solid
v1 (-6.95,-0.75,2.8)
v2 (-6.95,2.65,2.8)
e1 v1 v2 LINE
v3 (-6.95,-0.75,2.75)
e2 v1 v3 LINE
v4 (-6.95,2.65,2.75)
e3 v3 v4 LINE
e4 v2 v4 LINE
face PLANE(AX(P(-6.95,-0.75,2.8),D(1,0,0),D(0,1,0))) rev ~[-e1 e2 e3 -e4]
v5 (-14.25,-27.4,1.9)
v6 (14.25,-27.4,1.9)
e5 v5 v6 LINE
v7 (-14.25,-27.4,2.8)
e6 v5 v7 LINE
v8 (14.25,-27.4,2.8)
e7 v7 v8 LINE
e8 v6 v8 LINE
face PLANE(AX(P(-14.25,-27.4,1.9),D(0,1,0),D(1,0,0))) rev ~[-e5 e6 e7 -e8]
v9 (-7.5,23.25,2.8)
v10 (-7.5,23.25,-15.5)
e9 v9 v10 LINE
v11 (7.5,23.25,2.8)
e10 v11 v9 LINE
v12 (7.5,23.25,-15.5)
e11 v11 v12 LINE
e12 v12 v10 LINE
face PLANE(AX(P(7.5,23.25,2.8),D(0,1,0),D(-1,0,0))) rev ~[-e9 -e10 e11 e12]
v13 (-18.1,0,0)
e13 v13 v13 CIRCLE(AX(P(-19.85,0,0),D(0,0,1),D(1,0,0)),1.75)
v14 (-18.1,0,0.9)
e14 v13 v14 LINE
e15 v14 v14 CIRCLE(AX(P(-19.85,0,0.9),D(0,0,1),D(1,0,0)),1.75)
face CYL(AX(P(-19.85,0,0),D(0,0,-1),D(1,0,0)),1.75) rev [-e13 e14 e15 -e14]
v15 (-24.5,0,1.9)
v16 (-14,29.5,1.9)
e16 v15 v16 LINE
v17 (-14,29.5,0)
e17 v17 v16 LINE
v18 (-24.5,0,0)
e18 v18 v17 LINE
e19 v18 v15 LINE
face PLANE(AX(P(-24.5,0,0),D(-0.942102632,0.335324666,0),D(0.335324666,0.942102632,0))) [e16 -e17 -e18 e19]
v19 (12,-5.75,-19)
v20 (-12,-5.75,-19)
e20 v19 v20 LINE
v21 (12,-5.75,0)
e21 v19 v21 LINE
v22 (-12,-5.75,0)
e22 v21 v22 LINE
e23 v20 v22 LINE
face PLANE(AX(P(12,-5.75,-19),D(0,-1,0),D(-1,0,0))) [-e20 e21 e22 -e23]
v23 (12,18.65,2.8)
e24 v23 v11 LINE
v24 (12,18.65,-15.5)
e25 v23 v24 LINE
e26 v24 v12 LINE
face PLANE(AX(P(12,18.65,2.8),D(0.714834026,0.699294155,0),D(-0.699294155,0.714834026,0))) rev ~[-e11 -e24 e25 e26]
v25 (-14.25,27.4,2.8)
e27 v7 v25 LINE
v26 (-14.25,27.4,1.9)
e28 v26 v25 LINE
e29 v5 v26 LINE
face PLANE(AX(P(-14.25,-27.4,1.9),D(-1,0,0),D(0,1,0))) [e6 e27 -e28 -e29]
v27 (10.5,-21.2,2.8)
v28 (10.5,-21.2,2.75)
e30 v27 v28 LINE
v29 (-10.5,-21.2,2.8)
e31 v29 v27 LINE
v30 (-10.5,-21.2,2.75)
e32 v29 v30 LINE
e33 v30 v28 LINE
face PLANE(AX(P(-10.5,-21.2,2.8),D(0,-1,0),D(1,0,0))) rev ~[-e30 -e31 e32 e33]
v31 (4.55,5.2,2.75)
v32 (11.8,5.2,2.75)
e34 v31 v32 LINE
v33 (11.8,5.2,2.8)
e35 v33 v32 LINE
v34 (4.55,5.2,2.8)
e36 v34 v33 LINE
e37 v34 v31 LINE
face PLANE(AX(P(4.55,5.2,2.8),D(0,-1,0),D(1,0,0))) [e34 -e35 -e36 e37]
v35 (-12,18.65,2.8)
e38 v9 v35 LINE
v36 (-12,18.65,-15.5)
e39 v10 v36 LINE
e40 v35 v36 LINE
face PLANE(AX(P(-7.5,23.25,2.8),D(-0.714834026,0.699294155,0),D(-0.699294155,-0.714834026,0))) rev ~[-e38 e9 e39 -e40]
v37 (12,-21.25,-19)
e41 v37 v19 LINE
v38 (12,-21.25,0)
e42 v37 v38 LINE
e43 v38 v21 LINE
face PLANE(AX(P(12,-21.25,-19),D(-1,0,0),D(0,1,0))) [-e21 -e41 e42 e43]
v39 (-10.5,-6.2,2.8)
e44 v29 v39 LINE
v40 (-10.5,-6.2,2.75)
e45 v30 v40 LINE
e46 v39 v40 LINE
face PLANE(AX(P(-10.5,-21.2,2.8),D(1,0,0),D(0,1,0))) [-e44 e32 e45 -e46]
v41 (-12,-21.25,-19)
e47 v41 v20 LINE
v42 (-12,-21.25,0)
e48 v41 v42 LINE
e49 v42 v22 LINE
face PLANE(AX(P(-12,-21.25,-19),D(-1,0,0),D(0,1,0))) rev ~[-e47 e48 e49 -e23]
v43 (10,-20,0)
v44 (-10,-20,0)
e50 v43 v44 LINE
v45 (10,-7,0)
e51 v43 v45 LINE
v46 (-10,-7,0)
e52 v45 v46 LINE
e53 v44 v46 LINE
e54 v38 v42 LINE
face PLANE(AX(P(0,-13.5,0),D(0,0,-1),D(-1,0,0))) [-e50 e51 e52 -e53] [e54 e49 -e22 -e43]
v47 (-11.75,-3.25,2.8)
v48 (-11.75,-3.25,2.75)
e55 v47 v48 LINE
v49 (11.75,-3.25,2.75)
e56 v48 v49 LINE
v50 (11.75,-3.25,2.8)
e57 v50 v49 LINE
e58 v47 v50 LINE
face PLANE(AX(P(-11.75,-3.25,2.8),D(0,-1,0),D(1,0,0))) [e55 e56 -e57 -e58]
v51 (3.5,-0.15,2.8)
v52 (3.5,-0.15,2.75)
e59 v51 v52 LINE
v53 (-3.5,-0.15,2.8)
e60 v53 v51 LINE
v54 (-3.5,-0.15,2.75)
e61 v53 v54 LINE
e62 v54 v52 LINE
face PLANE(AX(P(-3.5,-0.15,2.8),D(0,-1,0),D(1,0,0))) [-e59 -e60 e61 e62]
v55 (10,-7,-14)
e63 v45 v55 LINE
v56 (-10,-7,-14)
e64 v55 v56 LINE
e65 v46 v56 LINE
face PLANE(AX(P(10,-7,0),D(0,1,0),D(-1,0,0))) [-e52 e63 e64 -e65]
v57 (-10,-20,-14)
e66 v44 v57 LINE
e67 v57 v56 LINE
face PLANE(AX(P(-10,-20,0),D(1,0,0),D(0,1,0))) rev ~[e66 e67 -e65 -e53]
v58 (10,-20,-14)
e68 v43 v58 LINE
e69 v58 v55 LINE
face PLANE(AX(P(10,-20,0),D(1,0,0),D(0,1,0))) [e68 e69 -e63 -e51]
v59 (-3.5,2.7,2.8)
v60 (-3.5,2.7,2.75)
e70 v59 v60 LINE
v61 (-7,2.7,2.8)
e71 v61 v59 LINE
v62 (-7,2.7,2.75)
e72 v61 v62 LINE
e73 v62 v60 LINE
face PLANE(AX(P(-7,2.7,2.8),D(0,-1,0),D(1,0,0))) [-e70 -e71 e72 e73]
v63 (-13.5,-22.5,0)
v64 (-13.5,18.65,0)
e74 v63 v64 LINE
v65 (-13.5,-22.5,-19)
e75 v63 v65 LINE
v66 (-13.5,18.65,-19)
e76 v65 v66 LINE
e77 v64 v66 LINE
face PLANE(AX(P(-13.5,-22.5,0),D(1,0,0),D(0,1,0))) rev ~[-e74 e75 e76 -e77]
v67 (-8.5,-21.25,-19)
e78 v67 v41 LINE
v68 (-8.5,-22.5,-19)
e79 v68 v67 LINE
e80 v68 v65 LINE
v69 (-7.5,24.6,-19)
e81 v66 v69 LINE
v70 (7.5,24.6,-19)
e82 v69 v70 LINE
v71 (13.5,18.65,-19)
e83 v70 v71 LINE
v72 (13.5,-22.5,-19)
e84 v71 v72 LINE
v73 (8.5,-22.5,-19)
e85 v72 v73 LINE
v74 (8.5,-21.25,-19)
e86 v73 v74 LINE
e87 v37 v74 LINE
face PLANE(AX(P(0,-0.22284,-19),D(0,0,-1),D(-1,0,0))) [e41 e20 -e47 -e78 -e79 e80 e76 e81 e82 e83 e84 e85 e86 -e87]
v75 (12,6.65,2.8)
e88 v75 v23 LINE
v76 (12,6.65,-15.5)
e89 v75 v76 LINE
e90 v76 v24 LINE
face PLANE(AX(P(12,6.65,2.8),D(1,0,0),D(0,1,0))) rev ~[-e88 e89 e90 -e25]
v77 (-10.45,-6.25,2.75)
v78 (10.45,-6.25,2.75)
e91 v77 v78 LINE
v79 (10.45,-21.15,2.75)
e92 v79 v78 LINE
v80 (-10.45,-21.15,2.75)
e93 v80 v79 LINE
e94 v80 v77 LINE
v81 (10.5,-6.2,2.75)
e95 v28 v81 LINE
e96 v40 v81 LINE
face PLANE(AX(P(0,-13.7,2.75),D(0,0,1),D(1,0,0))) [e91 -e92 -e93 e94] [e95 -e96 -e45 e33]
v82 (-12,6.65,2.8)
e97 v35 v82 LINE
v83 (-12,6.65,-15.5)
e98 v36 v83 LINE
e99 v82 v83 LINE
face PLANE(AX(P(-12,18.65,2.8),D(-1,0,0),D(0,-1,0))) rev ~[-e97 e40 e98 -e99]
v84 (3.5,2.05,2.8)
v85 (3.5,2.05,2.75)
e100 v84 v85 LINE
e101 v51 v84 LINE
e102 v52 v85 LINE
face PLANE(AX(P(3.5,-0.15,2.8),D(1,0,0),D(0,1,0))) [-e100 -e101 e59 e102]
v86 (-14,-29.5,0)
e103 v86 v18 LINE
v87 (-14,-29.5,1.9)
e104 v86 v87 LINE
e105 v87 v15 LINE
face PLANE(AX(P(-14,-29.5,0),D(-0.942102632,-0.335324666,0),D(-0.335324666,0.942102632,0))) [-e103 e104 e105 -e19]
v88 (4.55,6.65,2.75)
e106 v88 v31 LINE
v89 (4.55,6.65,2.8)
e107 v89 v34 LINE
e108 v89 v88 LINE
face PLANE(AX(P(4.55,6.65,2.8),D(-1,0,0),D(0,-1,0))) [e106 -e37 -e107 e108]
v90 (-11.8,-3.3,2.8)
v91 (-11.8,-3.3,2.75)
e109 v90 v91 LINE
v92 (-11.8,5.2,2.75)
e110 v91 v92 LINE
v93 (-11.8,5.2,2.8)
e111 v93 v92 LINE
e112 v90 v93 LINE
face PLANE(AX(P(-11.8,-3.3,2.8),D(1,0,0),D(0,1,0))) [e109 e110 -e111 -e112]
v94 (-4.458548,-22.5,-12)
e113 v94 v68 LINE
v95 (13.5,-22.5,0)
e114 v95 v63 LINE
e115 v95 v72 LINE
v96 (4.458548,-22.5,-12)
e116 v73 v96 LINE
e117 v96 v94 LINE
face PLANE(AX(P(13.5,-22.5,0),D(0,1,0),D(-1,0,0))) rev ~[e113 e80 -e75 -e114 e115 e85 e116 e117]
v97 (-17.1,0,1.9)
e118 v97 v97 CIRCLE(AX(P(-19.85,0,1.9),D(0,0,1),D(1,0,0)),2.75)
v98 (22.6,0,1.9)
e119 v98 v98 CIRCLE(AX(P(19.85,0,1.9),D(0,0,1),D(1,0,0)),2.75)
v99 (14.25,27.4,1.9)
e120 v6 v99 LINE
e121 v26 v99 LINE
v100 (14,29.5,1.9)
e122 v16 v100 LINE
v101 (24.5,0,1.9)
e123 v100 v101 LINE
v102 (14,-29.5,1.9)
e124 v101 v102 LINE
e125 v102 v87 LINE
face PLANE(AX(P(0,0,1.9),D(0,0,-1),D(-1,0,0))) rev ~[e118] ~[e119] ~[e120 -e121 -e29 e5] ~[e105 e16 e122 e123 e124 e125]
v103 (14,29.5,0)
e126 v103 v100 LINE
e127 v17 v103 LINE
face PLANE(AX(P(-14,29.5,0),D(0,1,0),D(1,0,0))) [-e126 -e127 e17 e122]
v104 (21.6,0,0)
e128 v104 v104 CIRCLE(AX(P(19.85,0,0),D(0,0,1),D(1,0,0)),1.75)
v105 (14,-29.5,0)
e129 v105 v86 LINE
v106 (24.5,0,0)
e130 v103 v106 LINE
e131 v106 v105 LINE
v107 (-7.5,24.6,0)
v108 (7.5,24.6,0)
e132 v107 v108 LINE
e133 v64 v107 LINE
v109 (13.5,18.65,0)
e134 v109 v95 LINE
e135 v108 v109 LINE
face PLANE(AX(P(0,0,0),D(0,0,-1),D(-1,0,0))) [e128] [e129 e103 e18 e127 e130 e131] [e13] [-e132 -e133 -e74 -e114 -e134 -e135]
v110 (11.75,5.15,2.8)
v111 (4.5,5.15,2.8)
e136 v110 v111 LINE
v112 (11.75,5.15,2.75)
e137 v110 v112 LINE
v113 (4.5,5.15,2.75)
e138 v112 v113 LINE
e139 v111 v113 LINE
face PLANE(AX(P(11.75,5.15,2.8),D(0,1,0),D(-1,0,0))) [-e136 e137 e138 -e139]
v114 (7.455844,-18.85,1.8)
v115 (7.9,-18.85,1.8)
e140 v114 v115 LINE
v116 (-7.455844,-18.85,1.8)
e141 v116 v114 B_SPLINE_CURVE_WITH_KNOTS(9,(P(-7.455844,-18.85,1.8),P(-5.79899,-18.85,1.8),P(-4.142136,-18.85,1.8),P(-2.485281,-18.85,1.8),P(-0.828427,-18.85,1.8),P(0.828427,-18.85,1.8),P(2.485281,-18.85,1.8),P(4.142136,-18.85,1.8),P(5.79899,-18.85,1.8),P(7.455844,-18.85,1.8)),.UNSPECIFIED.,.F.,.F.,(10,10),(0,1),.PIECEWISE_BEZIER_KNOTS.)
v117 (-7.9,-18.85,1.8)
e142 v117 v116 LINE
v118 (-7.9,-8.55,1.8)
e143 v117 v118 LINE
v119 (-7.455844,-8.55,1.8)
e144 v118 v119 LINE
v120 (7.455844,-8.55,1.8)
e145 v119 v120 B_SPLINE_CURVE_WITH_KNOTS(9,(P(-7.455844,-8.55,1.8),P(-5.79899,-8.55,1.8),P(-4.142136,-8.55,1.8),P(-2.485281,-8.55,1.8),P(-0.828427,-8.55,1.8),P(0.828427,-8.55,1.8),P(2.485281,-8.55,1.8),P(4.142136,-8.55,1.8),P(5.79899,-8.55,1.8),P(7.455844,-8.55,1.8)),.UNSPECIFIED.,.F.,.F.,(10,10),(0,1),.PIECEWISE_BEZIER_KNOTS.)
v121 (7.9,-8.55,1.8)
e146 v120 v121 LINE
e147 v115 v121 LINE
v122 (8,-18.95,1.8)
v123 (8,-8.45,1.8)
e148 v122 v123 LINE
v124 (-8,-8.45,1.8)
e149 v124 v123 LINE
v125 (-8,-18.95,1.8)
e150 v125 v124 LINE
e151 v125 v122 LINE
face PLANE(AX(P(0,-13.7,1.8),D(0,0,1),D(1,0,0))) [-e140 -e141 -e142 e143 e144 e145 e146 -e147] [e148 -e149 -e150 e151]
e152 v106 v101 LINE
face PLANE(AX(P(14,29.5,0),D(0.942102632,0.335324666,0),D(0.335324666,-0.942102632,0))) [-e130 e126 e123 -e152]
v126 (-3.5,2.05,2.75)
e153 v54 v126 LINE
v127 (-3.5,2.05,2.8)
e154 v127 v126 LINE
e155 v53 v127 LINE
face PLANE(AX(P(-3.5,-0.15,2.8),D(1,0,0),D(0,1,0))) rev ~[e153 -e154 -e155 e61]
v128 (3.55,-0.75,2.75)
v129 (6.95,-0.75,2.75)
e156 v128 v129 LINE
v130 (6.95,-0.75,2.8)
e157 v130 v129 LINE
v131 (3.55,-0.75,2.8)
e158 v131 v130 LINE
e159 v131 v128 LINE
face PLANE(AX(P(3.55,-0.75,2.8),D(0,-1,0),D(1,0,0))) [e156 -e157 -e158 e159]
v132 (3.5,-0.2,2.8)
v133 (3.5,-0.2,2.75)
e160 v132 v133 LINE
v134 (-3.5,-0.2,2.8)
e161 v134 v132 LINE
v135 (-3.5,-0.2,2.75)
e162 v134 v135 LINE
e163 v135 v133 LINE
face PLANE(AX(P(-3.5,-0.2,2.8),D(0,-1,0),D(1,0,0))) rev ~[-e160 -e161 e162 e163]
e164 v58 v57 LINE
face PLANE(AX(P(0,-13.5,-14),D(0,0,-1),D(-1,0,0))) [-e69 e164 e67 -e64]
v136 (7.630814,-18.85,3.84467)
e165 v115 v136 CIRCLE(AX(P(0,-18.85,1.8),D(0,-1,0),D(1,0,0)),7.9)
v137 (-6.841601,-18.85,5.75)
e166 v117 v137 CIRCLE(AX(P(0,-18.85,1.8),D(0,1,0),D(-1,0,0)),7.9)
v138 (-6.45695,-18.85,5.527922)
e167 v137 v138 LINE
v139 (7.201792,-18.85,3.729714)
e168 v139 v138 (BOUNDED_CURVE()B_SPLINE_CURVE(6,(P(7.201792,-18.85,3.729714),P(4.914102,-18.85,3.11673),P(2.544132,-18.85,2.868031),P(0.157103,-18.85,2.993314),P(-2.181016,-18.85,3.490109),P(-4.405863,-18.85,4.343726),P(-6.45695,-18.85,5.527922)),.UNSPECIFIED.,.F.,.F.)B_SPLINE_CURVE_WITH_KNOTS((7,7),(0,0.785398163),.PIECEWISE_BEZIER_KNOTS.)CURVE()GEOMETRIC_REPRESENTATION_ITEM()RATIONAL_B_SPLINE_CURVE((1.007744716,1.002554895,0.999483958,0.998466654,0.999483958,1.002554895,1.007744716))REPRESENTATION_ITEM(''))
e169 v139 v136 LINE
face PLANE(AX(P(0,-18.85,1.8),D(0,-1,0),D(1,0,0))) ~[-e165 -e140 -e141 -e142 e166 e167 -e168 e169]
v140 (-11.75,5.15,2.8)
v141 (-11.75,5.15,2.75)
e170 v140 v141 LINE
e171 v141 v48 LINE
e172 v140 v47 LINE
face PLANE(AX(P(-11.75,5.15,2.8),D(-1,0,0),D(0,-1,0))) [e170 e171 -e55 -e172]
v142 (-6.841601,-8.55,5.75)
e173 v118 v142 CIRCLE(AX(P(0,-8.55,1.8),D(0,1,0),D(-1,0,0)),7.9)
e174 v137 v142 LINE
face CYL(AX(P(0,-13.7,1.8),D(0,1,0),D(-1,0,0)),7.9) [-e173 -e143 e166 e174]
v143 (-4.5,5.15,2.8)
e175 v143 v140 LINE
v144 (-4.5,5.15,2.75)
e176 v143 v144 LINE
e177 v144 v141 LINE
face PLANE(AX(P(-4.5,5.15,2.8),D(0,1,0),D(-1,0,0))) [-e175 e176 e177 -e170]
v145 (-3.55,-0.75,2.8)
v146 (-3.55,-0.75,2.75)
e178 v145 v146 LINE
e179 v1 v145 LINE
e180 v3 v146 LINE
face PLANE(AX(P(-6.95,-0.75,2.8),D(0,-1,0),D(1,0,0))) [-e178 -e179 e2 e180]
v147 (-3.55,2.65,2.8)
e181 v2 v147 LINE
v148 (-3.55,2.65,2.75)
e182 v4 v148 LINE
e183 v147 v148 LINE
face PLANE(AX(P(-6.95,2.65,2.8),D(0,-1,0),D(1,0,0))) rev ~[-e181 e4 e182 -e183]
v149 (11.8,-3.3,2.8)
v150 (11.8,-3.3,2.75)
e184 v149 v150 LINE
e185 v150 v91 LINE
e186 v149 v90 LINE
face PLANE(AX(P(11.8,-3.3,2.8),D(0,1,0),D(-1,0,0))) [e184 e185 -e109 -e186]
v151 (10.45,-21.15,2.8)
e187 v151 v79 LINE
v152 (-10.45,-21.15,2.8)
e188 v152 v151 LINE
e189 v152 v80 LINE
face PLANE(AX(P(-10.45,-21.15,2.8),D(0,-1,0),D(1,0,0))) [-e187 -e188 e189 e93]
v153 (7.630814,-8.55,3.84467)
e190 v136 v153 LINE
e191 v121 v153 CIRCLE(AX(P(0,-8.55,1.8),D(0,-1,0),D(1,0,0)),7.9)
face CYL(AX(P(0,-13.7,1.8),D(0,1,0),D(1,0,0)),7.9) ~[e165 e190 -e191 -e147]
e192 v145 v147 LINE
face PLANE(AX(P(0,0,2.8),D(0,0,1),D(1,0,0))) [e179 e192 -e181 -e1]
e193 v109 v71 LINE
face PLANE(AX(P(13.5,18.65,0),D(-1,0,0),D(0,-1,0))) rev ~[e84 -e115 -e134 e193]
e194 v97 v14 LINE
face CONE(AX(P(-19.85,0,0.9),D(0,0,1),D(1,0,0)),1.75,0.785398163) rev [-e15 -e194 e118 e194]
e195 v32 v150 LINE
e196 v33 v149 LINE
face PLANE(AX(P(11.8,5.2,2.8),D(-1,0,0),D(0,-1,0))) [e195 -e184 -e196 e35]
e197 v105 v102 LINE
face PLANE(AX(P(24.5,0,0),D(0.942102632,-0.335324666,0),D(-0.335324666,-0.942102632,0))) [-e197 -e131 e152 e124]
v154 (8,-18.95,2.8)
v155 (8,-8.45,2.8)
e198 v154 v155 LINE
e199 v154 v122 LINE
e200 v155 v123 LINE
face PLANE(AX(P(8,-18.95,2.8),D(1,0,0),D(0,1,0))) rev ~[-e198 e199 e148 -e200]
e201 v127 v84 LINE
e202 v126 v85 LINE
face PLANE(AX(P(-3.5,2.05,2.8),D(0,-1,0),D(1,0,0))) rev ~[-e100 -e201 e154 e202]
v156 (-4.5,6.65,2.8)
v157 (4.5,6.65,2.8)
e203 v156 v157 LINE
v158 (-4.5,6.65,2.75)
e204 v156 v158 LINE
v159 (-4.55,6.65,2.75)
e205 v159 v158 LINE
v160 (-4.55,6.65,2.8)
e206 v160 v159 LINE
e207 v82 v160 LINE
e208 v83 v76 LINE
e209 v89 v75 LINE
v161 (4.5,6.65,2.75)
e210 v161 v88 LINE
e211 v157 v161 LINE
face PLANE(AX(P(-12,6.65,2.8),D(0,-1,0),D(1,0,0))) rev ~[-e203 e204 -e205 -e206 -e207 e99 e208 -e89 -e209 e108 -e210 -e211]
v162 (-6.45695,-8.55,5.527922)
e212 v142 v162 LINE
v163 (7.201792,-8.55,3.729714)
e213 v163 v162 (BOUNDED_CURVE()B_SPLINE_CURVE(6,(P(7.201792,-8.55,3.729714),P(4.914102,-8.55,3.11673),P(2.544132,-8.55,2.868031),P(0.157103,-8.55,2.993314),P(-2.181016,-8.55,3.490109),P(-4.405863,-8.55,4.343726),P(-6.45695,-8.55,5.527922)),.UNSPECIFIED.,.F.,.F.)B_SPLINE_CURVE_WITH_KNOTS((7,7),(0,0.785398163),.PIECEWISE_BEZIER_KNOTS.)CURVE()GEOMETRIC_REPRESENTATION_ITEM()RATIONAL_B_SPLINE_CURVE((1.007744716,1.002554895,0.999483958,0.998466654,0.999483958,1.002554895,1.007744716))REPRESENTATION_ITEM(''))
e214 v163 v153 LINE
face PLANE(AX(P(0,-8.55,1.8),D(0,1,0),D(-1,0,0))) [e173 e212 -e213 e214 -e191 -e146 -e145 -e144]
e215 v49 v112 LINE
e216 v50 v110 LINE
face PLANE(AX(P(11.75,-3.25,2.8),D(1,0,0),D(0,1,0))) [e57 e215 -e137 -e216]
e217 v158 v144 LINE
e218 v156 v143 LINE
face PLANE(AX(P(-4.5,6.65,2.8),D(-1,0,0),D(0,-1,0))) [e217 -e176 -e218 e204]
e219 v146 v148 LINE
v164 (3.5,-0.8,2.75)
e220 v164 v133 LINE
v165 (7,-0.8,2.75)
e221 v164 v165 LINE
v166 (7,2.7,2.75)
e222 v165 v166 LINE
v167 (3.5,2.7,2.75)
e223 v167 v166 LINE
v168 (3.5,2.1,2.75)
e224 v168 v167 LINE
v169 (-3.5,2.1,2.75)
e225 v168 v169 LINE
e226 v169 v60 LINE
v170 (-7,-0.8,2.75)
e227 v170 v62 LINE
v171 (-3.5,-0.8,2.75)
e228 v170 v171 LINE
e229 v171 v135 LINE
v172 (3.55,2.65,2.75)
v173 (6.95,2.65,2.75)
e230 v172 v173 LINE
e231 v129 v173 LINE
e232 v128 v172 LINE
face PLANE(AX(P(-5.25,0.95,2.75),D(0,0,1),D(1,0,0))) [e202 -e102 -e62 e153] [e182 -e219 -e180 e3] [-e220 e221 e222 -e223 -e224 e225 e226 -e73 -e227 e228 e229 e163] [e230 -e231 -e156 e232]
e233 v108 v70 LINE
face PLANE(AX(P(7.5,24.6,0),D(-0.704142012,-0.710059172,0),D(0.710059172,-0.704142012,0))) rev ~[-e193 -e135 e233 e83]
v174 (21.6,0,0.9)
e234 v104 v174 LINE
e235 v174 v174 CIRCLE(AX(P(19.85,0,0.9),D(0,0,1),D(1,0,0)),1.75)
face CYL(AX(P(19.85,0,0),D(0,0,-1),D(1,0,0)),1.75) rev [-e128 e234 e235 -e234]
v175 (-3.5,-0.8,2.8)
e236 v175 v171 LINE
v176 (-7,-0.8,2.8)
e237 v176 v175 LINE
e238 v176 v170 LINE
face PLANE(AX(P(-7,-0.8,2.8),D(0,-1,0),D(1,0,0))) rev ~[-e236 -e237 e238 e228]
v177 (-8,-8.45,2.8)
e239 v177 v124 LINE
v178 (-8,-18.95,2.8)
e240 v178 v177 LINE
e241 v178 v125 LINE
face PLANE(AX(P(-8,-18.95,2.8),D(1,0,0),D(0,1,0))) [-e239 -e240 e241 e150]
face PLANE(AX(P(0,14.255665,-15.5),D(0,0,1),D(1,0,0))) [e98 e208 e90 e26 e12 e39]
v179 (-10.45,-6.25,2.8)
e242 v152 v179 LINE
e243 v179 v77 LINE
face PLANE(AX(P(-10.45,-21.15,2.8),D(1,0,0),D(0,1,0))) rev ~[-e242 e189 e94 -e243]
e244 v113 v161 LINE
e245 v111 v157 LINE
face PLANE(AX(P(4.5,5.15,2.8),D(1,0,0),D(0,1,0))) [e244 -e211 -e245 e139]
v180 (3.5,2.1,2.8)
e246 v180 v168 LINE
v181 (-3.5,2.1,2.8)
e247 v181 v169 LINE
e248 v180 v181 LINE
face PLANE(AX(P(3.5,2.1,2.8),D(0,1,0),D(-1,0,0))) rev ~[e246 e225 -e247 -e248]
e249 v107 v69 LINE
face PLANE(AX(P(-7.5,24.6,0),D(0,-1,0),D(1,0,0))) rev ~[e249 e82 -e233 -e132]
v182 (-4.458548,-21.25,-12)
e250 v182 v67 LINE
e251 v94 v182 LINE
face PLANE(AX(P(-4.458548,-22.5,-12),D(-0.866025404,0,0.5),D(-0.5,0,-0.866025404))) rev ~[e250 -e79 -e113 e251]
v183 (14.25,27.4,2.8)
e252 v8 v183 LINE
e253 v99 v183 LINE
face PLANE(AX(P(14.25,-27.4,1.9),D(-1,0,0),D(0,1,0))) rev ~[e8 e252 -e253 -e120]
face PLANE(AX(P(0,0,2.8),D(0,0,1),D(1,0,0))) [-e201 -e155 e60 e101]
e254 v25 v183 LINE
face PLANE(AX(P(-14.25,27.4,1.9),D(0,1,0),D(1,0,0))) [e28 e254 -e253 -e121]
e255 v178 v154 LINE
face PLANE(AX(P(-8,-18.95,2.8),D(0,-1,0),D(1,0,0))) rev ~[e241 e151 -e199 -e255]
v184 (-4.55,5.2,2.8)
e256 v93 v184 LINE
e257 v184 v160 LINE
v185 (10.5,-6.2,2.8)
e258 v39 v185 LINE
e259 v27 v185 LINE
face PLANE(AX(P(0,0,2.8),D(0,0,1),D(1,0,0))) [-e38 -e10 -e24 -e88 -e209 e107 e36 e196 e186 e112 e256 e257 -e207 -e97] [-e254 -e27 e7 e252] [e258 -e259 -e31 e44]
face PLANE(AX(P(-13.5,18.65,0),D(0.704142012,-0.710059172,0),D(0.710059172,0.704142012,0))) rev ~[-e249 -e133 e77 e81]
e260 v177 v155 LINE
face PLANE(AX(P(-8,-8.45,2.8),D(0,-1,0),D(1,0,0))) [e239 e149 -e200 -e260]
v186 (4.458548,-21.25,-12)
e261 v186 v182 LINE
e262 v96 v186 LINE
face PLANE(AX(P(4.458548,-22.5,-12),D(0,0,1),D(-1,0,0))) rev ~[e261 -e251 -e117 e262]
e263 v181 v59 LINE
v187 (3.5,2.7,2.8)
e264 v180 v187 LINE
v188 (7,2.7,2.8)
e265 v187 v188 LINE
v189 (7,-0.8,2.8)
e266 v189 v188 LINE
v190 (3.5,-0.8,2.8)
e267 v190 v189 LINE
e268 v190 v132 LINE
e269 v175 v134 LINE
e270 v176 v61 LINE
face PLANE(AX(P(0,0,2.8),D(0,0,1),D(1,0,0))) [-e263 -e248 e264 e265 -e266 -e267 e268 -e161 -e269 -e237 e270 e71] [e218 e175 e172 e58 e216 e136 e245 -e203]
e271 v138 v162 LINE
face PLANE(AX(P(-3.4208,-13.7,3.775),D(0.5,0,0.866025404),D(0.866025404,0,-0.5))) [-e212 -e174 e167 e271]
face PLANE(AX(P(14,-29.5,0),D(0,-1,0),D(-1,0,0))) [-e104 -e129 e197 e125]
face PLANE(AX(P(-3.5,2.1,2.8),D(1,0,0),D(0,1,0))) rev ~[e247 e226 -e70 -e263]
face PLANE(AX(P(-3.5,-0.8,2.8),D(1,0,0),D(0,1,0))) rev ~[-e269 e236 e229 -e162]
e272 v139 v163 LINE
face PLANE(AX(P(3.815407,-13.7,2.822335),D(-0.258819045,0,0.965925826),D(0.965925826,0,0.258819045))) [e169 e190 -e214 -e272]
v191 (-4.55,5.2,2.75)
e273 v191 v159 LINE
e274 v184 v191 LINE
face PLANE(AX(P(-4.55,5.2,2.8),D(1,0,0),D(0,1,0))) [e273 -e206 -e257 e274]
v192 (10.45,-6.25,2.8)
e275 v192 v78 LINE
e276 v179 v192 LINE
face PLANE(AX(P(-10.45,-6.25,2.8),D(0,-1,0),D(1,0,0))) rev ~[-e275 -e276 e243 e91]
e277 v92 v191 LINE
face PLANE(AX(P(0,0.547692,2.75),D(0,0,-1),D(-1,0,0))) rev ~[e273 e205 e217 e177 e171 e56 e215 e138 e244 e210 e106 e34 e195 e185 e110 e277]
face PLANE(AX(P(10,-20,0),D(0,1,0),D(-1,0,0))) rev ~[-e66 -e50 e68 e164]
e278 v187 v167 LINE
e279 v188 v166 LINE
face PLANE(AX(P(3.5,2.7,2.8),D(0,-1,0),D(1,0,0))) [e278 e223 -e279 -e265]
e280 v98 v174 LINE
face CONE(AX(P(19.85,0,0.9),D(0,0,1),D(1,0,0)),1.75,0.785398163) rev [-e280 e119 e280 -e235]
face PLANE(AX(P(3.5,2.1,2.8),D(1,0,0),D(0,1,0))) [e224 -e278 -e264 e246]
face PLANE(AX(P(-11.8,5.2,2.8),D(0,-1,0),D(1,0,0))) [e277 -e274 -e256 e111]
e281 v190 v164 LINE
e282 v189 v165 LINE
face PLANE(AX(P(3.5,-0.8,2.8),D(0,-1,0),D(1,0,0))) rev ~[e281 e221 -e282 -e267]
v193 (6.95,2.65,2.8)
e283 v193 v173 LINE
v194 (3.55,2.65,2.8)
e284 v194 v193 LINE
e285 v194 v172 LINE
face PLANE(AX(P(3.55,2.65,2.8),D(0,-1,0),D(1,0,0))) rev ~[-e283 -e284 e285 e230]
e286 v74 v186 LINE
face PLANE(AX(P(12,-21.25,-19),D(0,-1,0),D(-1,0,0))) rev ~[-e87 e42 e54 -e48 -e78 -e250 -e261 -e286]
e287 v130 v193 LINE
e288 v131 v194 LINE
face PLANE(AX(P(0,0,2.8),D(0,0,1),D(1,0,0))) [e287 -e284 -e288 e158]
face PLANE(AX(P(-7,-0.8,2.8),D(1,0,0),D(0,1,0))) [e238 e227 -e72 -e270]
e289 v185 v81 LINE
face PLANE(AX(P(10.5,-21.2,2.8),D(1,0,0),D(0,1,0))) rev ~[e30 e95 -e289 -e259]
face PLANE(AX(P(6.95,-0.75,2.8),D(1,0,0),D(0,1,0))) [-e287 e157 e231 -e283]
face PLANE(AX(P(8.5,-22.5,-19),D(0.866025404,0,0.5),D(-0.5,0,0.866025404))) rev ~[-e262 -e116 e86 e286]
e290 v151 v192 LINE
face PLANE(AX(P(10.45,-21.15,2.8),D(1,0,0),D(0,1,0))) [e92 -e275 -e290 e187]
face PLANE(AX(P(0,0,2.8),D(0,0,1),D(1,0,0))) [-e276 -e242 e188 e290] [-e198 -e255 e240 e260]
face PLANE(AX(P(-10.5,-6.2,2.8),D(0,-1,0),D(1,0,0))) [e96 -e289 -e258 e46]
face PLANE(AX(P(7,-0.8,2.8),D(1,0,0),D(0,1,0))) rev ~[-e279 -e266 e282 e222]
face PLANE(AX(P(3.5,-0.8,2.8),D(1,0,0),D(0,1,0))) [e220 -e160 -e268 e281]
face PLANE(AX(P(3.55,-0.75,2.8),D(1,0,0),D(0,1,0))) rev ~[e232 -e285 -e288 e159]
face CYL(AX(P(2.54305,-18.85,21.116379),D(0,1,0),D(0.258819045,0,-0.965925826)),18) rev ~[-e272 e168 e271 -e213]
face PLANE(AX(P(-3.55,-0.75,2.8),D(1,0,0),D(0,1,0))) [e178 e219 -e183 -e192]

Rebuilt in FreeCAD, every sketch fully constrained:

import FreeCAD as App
import Part
import Sketcher

V = App.Vector
Q = App.Units.Quantity


def edges_at(feature, points):
    """Names of the edges that pass closest to the given points."""
    edges = feature.Shape.Edges
    near = lambda p: min(range(len(edges)), key=lambda i: edges[i].distToShape(Part.Vertex(*p))[0])
    return sorted({f"Edge{near(p) + 1}" for p in points})


def add_polygon(sketch, points):
    """Adds a closed chain of lines whose ends are joined by coincident constraints."""
    first, n = sketch.GeometryCount, len(points)
    for a, b in zip(points, points[1:] + points[:1]):
        sketch.addGeometry(Part.LineSegment(App.Vector(*a, 0), App.Vector(*b, 0)), False)
    for i in range(n):
        sketch.addConstraint(Sketcher.Constraint("Coincident", first + i, 2, first + (i + 1) % n, 1))

doc = App.newDocument("Part")
params = doc.addObject("Spreadsheet::Sheet", "Params")
for row, (alias, value) in enumerate([
    ("sketch1_diameter", "3.5 mm"),
    ("sketch1_width", "28 mm"),
    ("pad1_length", "1.9 mm"),
    ("sketch2_width", "28.5 mm"),
    ("sketch2_height", "54.8 mm"),
    ("pad2_length", "0.9 mm"),
    ("chamfer_size", "1 mm"),
    ("sketch3_width", "15 mm"),
    ("sketch3_width2", "27 mm"),
    ("sketch3_height", "41.15 mm"),
    ("pad3_length", "19 mm"),
    ("sketch4_width", "15 mm"),
    ("sketch4_width2", "24 mm"),
    ("sketch4_height", "12 mm"),
    ("pocket1_length", "18.3 mm"),
    ("sketch5_width", "7 mm"),
    ("sketch5_width2", "21 mm"),
    ("sketch5_height", "15 mm"),
    ("sketch5_width3", "3.5 mm"),
    ("sketch5_width4", "3.4 mm"),
    ("pocket2_length", "0.05 mm"),
    ("sketch6_width", "24 mm"),
    ("sketch6_height", "15.5 mm"),
    ("pocket3_length", "19 mm"),
    ("sketch7_width", "17 mm"),
    ("pocket4_length", "1.25 mm"),
    ("sketch8_width", "20 mm"),
    ("sketch8_height", "13 mm"),
    ("pad4_length", "14 mm"),
    ("sketch9_width", "16 mm"),
    ("sketch9_height", "10.5 mm"),
    ("pocket5_length", "1 mm"),
    ("sketch10_width", "7.9 mm"),
    ("sketch10_height", "10.3 mm"),
    ("revolution_angle", "30 deg"),
    ("sketch11_width", "7.9 mm"),
    ("sketch11_height", "10.3 mm"),
    ("revolution2_angle", "15 deg"),
    ("fillet_radius", "18 mm"),
], start=1):
    params.set(f"A{row}", alias)
    params.set(f"B{row}", "=" + value)
    params.setAlias(f"B{row}", alias)

body = doc.addObject("PartDesign::Body", "Body")

# Sketch on XY plane
sketch1 = body.newObject("Sketcher::SketchObject", "Sketch")
sketch1.AttachmentSupport = (doc.getObject("XY_Plane"), [""])
sketch1.MapMode = "FlatFace"
add_polygon(sketch1, [(-14, 29.5), (-24.5, 0), (-14, -29.5), (14, -29.5), (24.5, 0), (14, 29.5)])  # lines 0-5
sketch1.addGeometry(Part.Circle(V(19.85, 0, 0), V(0, 0, 1), 1.75), False)  # 6
sketch1.addGeometry(Part.Circle(V(-19.85, 0, 0), V(0, 0, 1), 1.75), False)  # 7
sketch1.addConstraint(Sketcher.Constraint("Horizontal", 2))
sketch1.addConstraint(Sketcher.Constraint("Horizontal", 5))
sketch1.addConstraint(Sketcher.Constraint("Equal", 6, 7))
sketch1.addConstraint(Sketcher.Constraint("Symmetric", 6, 3, 7, 3, -1, 1))
sketch1.addConstraint(Sketcher.Constraint("Symmetric", 0, 2, 3, 2, -1, 1))
sketch1.addConstraint(Sketcher.Constraint("Symmetric", 1, 2, 4, 2, -1, 1))
sketch1.addConstraint(Sketcher.Constraint("PointOnObject", 6, 3, -1))
sketch1.addConstraint(Sketcher.Constraint("PointOnObject", 0, 2, -1))
sketch1.addConstraint(Sketcher.Constraint("Parallel", 0, 3))
sketch1.addConstraint(Sketcher.Constraint("Vertical", 2, 2, 4, 2))
sketch1.addConstraint(Sketcher.Constraint("Diameter", 6, Q("3.5 mm")))
sketch1.addConstraint(Sketcher.Constraint("DistanceX", 2, 1, 2, 2, Q("28 mm")))
sketch1.addConstraint(Sketcher.Constraint("DistanceX", 0, 2, 3, 2, Q("49 mm")))
sketch1.addConstraint(Sketcher.Constraint("DistanceY", 2, 2, 4, 2, Q("59 mm")))
sketch1.addConstraint(Sketcher.Constraint("DistanceX", 7, 3, 6, 3, Q("39.7 mm")))
sketch1.setExpression("Constraints[16]", "Params.sketch1_diameter")
sketch1.setExpression("Constraints[17]", "Params.sketch1_width")
pad1 = body.newObject("PartDesign::Pad", "Pad")
pad1.Profile = sketch1
pad1.setExpression("Length", "Params.pad1_length")

# Sketch on XY plane
sketch2 = body.newObject("Sketcher::SketchObject", "Sketch001")
sketch2.AttachmentSupport = (doc.getObject("XY_Plane"), [""])
sketch2.MapMode = "FlatFace"
sketch2.AttachmentOffset = App.Placement(V(0, 0, 1.9), App.Rotation())
add_polygon(sketch2, [(-14.25, 27.4), (-14.25, -27.4), (14.25, -27.4), (14.25, 27.4)])  # lines 0-3
sketch2.addConstraint(Sketcher.Constraint("Vertical", 0))
sketch2.addConstraint(Sketcher.Constraint("Horizontal", 1))
sketch2.addConstraint(Sketcher.Constraint("Vertical", 2))
sketch2.addConstraint(Sketcher.Constraint("Horizontal", 3))
sketch2.addConstraint(Sketcher.Constraint("Symmetric", 0, 2, 2, 2, -1, 1))
sketch2.addConstraint(Sketcher.Constraint("DistanceX", 1, 1, 1, 2, Q("28.5 mm")))
sketch2.addConstraint(Sketcher.Constraint("DistanceY", 0, 2, 0, 1, Q("54.8 mm")))
sketch2.setExpression("Constraints[9]", "Params.sketch2_width")
sketch2.setExpression("Constraints[10]", "Params.sketch2_height")
pad2 = body.newObject("PartDesign::Pad", "Pad001")
pad2.Profile = sketch2
pad2.setExpression("Length", "Params.pad2_length")
doc.recompute()

chamfer = body.newObject("PartDesign::Chamfer", "Chamfer")
chamfer.Base = (pad2, edges_at(pad2, [(-21.6, 0, 1.9), (18.1, 0, 1.9)]))
chamfer.setExpression("Size", "Params.chamfer_size")

# Sketch on XY plane
sketch3 = body.newObject("Sketcher::SketchObject", "Sketch002")
sketch3.AttachmentSupport = (doc.getObject("XY_Plane"), [""])
sketch3.MapMode = "FlatFace"
add_polygon(sketch3, [(-7.5, 24.6), (7.5, 24.6), (13.5, 18.65), (13.5, -22.5), (-13.5, -22.5), (-13.5, 18.65)])  # lines 0-5
sketch3.addConstraint(Sketcher.Constraint("Horizontal", 0))
sketch3.addConstraint(Sketcher.Constraint("Vertical", 2))
sketch3.addConstraint(Sketcher.Constraint("Horizontal", 3))
sketch3.addConstraint(Sketcher.Constraint("Vertical", 4))
sketch3.addConstraint(Sketcher.Constraint("Symmetric", 1, 2, 4, 2, -2))
sketch3.addConstraint(Sketcher.Constraint("Equal", 1, 5))
sketch3.addConstraint(Sketcher.Constraint("DistanceX", 0, 1, 0, 2, Q("15 mm")))
sketch3.addConstraint(Sketcher.Constraint("DistanceX", 3, 2, 3, 1, Q("27 mm")))
sketch3.addConstraint(Sketcher.Constraint("DistanceY", 2, 2, 2, 1, Q("41.15 mm")))
sketch3.addConstraint(Sketcher.Constraint("DistanceY", -1, 1, 0, 2, Q("24.6 mm")))
sketch3.addConstraint(Sketcher.Constraint("DistanceY", 2, 2, -1, 1, Q("22.5 mm")))
sketch3.setExpression("Constraints[12]", "Params.sketch3_width")
sketch3.setExpression("Constraints[13]", "Params.sketch3_width2")
sketch3.setExpression("Constraints[14]", "Params.sketch3_height")
pad3 = body.newObject("PartDesign::Pad", "Pad002")
pad3.Profile = sketch3
pad3.setExpression("Length", "Params.pad3_length")
pad3.Reversed = True

# Sketch on XY plane
sketch4 = body.newObject("Sketcher::SketchObject", "Sketch003")
sketch4.AttachmentSupport = (doc.getObject("XY_Plane"), [""])
sketch4.MapMode = "FlatFace"
sketch4.AttachmentOffset = App.Placement(V(0, 0, 2.8), App.Rotation())
add_polygon(sketch4, [(7.5, 23.25), (-7.5, 23.25), (-12, 18.65), (-12, 6.65), (12, 6.65), (12, 18.65)])  # lines 0-5
sketch4.addConstraint(Sketcher.Constraint("Horizontal", 0))
sketch4.addConstraint(Sketcher.Constraint("Vertical", 2))
sketch4.addConstraint(Sketcher.Constraint("Horizontal", 3))
sketch4.addConstraint(Sketcher.Constraint("Vertical", 4))
sketch4.addConstraint(Sketcher.Constraint("Symmetric", 1, 2, 4, 2, -2))
sketch4.addConstraint(Sketcher.Constraint("Equal", 1, 5))
sketch4.addConstraint(Sketcher.Constraint("DistanceX", 0, 2, 0, 1, Q("15 mm")))
sketch4.addConstraint(Sketcher.Constraint("DistanceX", 3, 1, 3, 2, Q("24 mm")))
sketch4.addConstraint(Sketcher.Constraint("DistanceY", 2, 2, 2, 1, Q("12 mm")))
sketch4.addConstraint(Sketcher.Constraint("DistanceY", 1, 2, 0, 2, Q("4.6 mm")))
sketch4.addConstraint(Sketcher.Constraint("DistanceY", -1, 1, 0, 2, Q("23.25 mm")))
sketch4.setExpression("Constraints[12]", "Params.sketch4_width")
sketch4.setExpression("Constraints[13]", "Params.sketch4_width2")
sketch4.setExpression("Constraints[14]", "Params.sketch4_height")
pocket1 = body.newObject("PartDesign::Pocket", "Pocket")
pocket1.Profile = sketch4
pocket1.setExpression("Length", "Params.pocket1_length")

# Sketch on XY plane
sketch5 = body.newObject("Sketcher::SketchObject", "Sketch004")
sketch5.AttachmentSupport = (doc.getObject("XY_Plane"), [""])
sketch5.MapMode = "FlatFace"
sketch5.AttachmentOffset = App.Placement(V(0, 0, 2.8), App.Rotation())
add_polygon(sketch5, [(-7, 2.7), (-7, -0.8), (-3.5, -0.8), (-3.5, -0.2), (3.5, -0.2), (3.5, -0.8), (7, -0.8), (7, 2.7), (3.5, 2.7), (3.5, 2.1), (-3.5, 2.1), (-3.5, 2.7)])  # lines 0-11
add_polygon(sketch5, [(-3.55, -0.75), (-6.95, -0.75), (-6.95, 2.65), (-3.55, 2.65)])  # lines 12-15
add_polygon(sketch5, [(3.5, -0.15), (-3.5, -0.15), (-3.5, 2.05), (3.5, 2.05)])  # lines 16-19
add_polygon(sketch5, [(6.95, -0.75), (3.55, -0.75), (3.55, 2.65), (6.95, 2.65)])  # lines 20-23
add_polygon(sketch5, [(-10.5, -6.2), (-10.5, -21.2), (10.5, -21.2), (10.5, -6.2)])  # lines 24-27
add_polygon(sketch5, [(10.45, -21.15), (-10.45, -21.15), (-10.45, -6.25), (10.45, -6.25)])  # lines 28-31
add_polygon(sketch5, [(-4.5, 5.15), (-4.5, 6.65), (-4.55, 6.65), (-4.55, 5.2), (-11.8, 5.2), (-11.8, -3.3), (11.8, -3.3), (11.8, 5.2), (4.55, 5.2), (4.55, 6.65), (4.5, 6.65), (4.5, 5.15), (11.75, 5.15), (11.75, -3.25), (-11.75, -3.25), (-11.75, 5.15)])  # lines 32-47
sketch5.addConstraint(Sketcher.Constraint("Vertical", 0))
sketch5.addConstraint(Sketcher.Constraint("Horizontal", 1))
sketch5.addConstraint(Sketcher.Constraint("Vertical", 2))
sketch5.addConstraint(Sketcher.Constraint("Horizontal", 3))
sketch5.addConstraint(Sketcher.Constraint("Vertical", 4))
sketch5.addConstraint(Sketcher.Constraint("Horizontal", 5))
sketch5.addConstraint(Sketcher.Constraint("Vertical", 6))
sketch5.addConstraint(Sketcher.Constraint("Horizontal", 7))
sketch5.addConstraint(Sketcher.Constraint("Vertical", 8))
sketch5.addConstraint(Sketcher.Constraint("Horizontal", 9))
sketch5.addConstraint(Sketcher.Constraint("Vertical", 10))
sketch5.addConstraint(Sketcher.Constraint("Horizontal", 11))
sketch5.addConstraint(Sketcher.Constraint("Horizontal", 12))
sketch5.addConstraint(Sketcher.Constraint("Vertical", 13))
sketch5.addConstraint(Sketcher.Constraint("Horizontal", 14))
sketch5.addConstraint(Sketcher.Constraint("Vertical", 15))
sketch5.addConstraint(Sketcher.Constraint("Horizontal", 16))
sketch5.addConstraint(Sketcher.Constraint("Vertical", 17))
sketch5.addConstraint(Sketcher.Constraint("Horizontal", 18))
sketch5.addConstraint(Sketcher.Constraint("Vertical", 19))
sketch5.addConstraint(Sketcher.Constraint("Horizontal", 20))
sketch5.addConstraint(Sketcher.Constraint("Vertical", 21))
sketch5.addConstraint(Sketcher.Constraint("Horizontal", 22))
sketch5.addConstraint(Sketcher.Constraint("Vertical", 23))
sketch5.addConstraint(Sketcher.Constraint("Vertical", 24))
sketch5.addConstraint(Sketcher.Constraint("Horizontal", 25))
sketch5.addConstraint(Sketcher.Constraint("Vertical", 26))
sketch5.addConstraint(Sketcher.Constraint("Horizontal", 27))
sketch5.addConstraint(Sketcher.Constraint("Horizontal", 28))
sketch5.addConstraint(Sketcher.Constraint("Vertical", 29))
sketch5.addConstraint(Sketcher.Constraint("Horizontal", 30))
sketch5.addConstraint(Sketcher.Constraint("Vertical", 31))
sketch5.addConstraint(Sketcher.Constraint("Vertical", 32))
sketch5.addConstraint(Sketcher.Constraint("Horizontal", 33))
sketch5.addConstraint(Sketcher.Constraint("Vertical", 34))
sketch5.addConstraint(Sketcher.Constraint("Horizontal", 35))
sketch5.addConstraint(Sketcher.Constraint("Vertical", 36))
sketch5.addConstraint(Sketcher.Constraint("Horizontal", 37))
sketch5.addConstraint(Sketcher.Constraint("Vertical", 38))
sketch5.addConstraint(Sketcher.Constraint("Horizontal", 39))
sketch5.addConstraint(Sketcher.Constraint("Vertical", 40))
sketch5.addConstraint(Sketcher.Constraint("Horizontal", 41))
sketch5.addConstraint(Sketcher.Constraint("Vertical", 42))
sketch5.addConstraint(Sketcher.Constraint("Horizontal", 43))
sketch5.addConstraint(Sketcher.Constraint("Vertical", 44))
sketch5.addConstraint(Sketcher.Constraint("Horizontal", 45))
sketch5.addConstraint(Sketcher.Constraint("Vertical", 46))
sketch5.addConstraint(Sketcher.Constraint("Horizontal", 47))
sketch5.addConstraint(Sketcher.Constraint("Symmetric", 1, 2, 4, 2, -2))
sketch5.addConstraint(Sketcher.Constraint("Symmetric", 7, 2, 10, 2, -2))
sketch5.addConstraint(Sketcher.Constraint("Symmetric", 15, 2, 20, 2, -2))
sketch5.addConstraint(Sketcher.Constraint("Symmetric", 13, 2, 22, 2, -2))
sketch5.addConstraint(Sketcher.Constraint("Symmetric", 35, 2, 38, 2, -2))
sketch5.addConstraint(Sketcher.Constraint("Symmetric", 33, 2, 40, 2, -2))
sketch5.addConstraint(Sketcher.Constraint("Symmetric", 43, 2, 46, 2, -2))
sketch5.addConstraint(Sketcher.Constraint("Vertical", 4, 2, 7, 2))
sketch5.addConstraint(Sketcher.Constraint("Vertical", 10, 2, 16, 2))
sketch5.addConstraint(Sketcher.Constraint("Vertical", 8, 2, 18, 2))
sketch5.addConstraint(Sketcher.Constraint("Equal", 1, 5))
sketch5.addConstraint(Sketcher.Constraint("Equal", 33, 41))
sketch5.addConstraint(Sketcher.Constraint("Equal", 39, 43))
sketch5.addConstraint(Sketcher.Constraint("Equal", 11, 0))
sketch5.addConstraint(Sketcher.Constraint("Equal", 4, 8))
sketch5.addConstraint(Sketcher.Constraint("Equal", 22, 13))
sketch5.addConstraint(Sketcher.Constraint("DistanceX", 3, 1, 3, 2, Q("7 mm")))
sketch5.addConstraint(Sketcher.Constraint("DistanceX", 25, 1, 25, 2, Q("21 mm")))
sketch5.addConstraint(Sketcher.Constraint("DistanceY", 24, 2, 24, 1, Q("15 mm")))
sketch5.addConstraint(Sketcher.Constraint("DistanceX", 1, 1, 1, 2, Q("3.5 mm")))
sketch5.addConstraint(Sketcher.Constraint("DistanceX", 12, 2, 12, 1, Q("3.4 mm")))
sketch5.addConstraint(Sketcher.Constraint("DistanceX", 28, 2, 28, 1, Q("20.9 mm")))
sketch5.addConstraint(Sketcher.Constraint("DistanceX", 37, 1, 37, 2, Q("23.6 mm")))
sketch5.addConstraint(Sketcher.Constraint("DistanceX", 45, 2, 45, 1, Q("23.5 mm")))
sketch5.addConstraint(Sketcher.Constraint("DistanceY", 2, 1, 2, 2, Q("0.6 mm")))
sketch5.addConstraint(Sketcher.Constraint("DistanceY", 17, 1, 17, 2, Q("2.2 mm")))
sketch5.addConstraint(Sketcher.Constraint("DistanceY", 29, 1, 29, 2, Q("14.9 mm")))
sketch5.addConstraint(Sketcher.Constraint("DistanceY", 32, 1, 32, 2, Q("1.5 mm")))
sketch5.addConstraint(Sketcher.Constraint("DistanceY", 36, 2, 36, 1, Q("8.5 mm")))
sketch5.addConstraint(Sketcher.Constraint("DistanceY", 44, 2, 44, 1, Q("8.4 mm")))
sketch5.addConstraint(Sketcher.Constraint("DistanceX", 24, 2, 1, 2, Q("7 mm")))
sketch5.addConstraint(Sketcher.Constraint("DistanceY", 24, 2, 2, 2, Q("21 mm")))
sketch5.addConstraint(Sketcher.Constraint("DistanceX", 32, 2, 10, 2, Q("1 mm")))
sketch5.addConstraint(Sketcher.Constraint("DistanceY", 14, 2, 32, 2, Q("4 mm")))
sketch5.addConstraint(Sketcher.Constraint("DistanceX", 33, 2, 14, 2, Q("1 mm")))
sketch5.addConstraint(Sketcher.Constraint("DistanceY", 5, 2, 38, 2, Q("6 mm")))
sketch5.addConstraint(Sketcher.Constraint("DistanceY", 30, 2, 44, 2, Q("3 mm")))
sketch5.addConstraint(Sketcher.Constraint("DistanceY", 34, 2, 34, 1, Q("1.45 mm")))
sketch5.addConstraint(Sketcher.Constraint("DistanceY", 0, 2, -1, 1, Q("0.8 mm")))
sketch5.addConstraint(Sketcher.Constraint("DistanceY", 15, 2, 16, 2, Q("0.6 mm")))
sketch5.addConstraint(Sketcher.Constraint("DistanceX", 28, 2, 12, 2, Q("3.5 mm")))
sketch5.setExpression("Constraints[112]", "Params.sketch5_width")
sketch5.setExpression("Constraints[113]", "Params.sketch5_width2")
sketch5.setExpression("Constraints[114]", "Params.sketch5_height")
sketch5.setExpression("Constraints[115]", "Params.sketch5_width3")
sketch5.setExpression("Constraints[116]", "Params.sketch5_width4")
pocket2 = body.newObject("PartDesign::Pocket", "Pocket001")
pocket2.Profile = sketch5
pocket2.setExpression("Length", "Params.pocket2_length")

# Sketch on XY plane
sketch6 = body.newObject("Sketcher::SketchObject", "Sketch005")
sketch6.AttachmentSupport = (doc.getObject("XY_Plane"), [""])
sketch6.MapMode = "FlatFace"
sketch6.AttachmentOffset = App.Placement(V(0, 0, -19), App.Rotation())
add_polygon(sketch6, [(12, -5.75), (12, -21.25), (-12, -21.25), (-12, -5.75)])  # lines 0-3
sketch6.addConstraint(Sketcher.Constraint("Vertical", 0))
sketch6.addConstraint(Sketcher.Constraint("Horizontal", 1))
sketch6.addConstraint(Sketcher.Constraint("Vertical", 2))
sketch6.addConstraint(Sketcher.Constraint("Horizontal", 3))
sketch6.addConstraint(Sketcher.Constraint("DistanceX", 1, 2, 1, 1, Q("24 mm")))
sketch6.addConstraint(Sketcher.Constraint("DistanceY", 0, 2, 0, 1, Q("15.5 mm")))
sketch6.addConstraint(Sketcher.Constraint("DistanceX", -1, 1, 0, 2, Q("12 mm")))
sketch6.addConstraint(Sketcher.Constraint("DistanceY", 0, 2, -1, 1, Q("21.25 mm")))
sketch6.setExpression("Constraints[8]", "Params.sketch6_width")
sketch6.setExpression("Constraints[9]", "Params.sketch6_height")
pocket3 = body.newObject("PartDesign::Pocket", "Pocket002")
pocket3.Profile = sketch6
pocket3.setExpression("Length", "Params.pocket3_length")
pocket3.Reversed = True

# Sketch on XZ plane
sketch7 = body.newObject("Sketcher::SketchObject", "Sketch006")
sketch7.AttachmentSupport = (doc.getObject("XZ_Plane"), [""])
sketch7.MapMode = "FlatFace"
sketch7.AttachmentOffset = App.Placement(V(0, 0, 22.5), App.Rotation())
add_polygon(sketch7, [(8.5, -19), (4.458548, -12), (-4.458548, -12), (-8.5, -19)])  # lines 0-3
sketch7.addConstraint(Sketcher.Constraint("Horizontal", 1))
sketch7.addConstraint(Sketcher.Constraint("Horizontal", 3))
sketch7.addConstraint(Sketcher.Constraint("Equal", 0, 2))
sketch7.addConstraint(Sketcher.Constraint("DistanceX", 3, 1, 3, 2, Q("17 mm")))
sketch7.addConstraint(Sketcher.Constraint("Angle", 0, Q("120 deg")))
sketch7.addConstraint(Sketcher.Constraint("DistanceY", 0, 2, -1, 1, Q("12 mm")))
sketch7.addConstraint(Sketcher.Constraint("DistanceY", 2, 2, -1, 1, Q("19 mm")))
sketch7.addConstraint(Sketcher.Constraint("DistanceX", 2, 2, -1, 1, Q("8.5 mm")))
sketch7.setExpression("Constraints[7]", "Params.sketch7_width")
pocket4 = body.newObject("PartDesign::Pocket", "Pocket003")
pocket4.Profile = sketch7
pocket4.setExpression("Length", "Params.pocket4_length")

# Sketch on XY plane
sketch8 = body.newObject("Sketcher::SketchObject", "Sketch007")
sketch8.AttachmentSupport = (doc.getObject("XY_Plane"), [""])
sketch8.MapMode = "FlatFace"
add_polygon(sketch8, [(10, -7), (10, -20), (-10, -20), (-10, -7)])  # lines 0-3
sketch8.addConstraint(Sketcher.Constraint("Vertical", 0))
sketch8.addConstraint(Sketcher.Constraint("Horizontal", 1))
sketch8.addConstraint(Sketcher.Constraint("Vertical", 2))
sketch8.addConstraint(Sketcher.Constraint("Horizontal", 3))
sketch8.addConstraint(Sketcher.Constraint("DistanceX", 1, 2, 1, 1, Q("20 mm")))
sketch8.addConstraint(Sketcher.Constraint("DistanceY", 0, 2, 0, 1, Q("13 mm")))
sketch8.addConstraint(Sketcher.Constraint("DistanceX", -1, 1, 0, 2, Q("10 mm")))
sketch8.addConstraint(Sketcher.Constraint("DistanceY", 0, 2, -1, 1, Q("20 mm")))
sketch8.setExpression("Constraints[8]", "Params.sketch8_width")
sketch8.setExpression("Constraints[9]", "Params.sketch8_height")
pad4 = body.newObject("PartDesign::Pad", "Pad003")
pad4.Profile = sketch8
pad4.setExpression("Length", "Params.pad4_length")
pad4.Reversed = True

# Sketch on XY plane
sketch9 = body.newObject("Sketcher::SketchObject", "Sketch008")
sketch9.AttachmentSupport = (doc.getObject("XY_Plane"), [""])
sketch9.MapMode = "FlatFace"
sketch9.AttachmentOffset = App.Placement(V(0, 0, 2.8), App.Rotation())
add_polygon(sketch9, [(-8, -8.45), (-8, -18.95), (8, -18.95), (8, -8.45)])  # lines 0-3
sketch9.addConstraint(Sketcher.Constraint("Vertical", 0))
sketch9.addConstraint(Sketcher.Constraint("Horizontal", 1))
sketch9.addConstraint(Sketcher.Constraint("Vertical", 2))
sketch9.addConstraint(Sketcher.Constraint("Horizontal", 3))
sketch9.addConstraint(Sketcher.Constraint("DistanceX", 1, 1, 1, 2, Q("16 mm")))
sketch9.addConstraint(Sketcher.Constraint("DistanceY", 0, 2, 0, 1, Q("10.5 mm")))
sketch9.addConstraint(Sketcher.Constraint("DistanceX", 0, 2, -1, 1, Q("8 mm")))
sketch9.addConstraint(Sketcher.Constraint("DistanceY", 0, 2, -1, 1, Q("18.95 mm")))
sketch9.setExpression("Constraints[8]", "Params.sketch9_width")
sketch9.setExpression("Constraints[9]", "Params.sketch9_height")
pocket5 = body.newObject("PartDesign::Pocket", "Pocket004")
pocket5.Profile = sketch9
pocket5.setExpression("Length", "Params.pocket5_length")

# Sketch on XY plane
sketch10 = body.newObject("Sketcher::SketchObject", "Sketch009")
sketch10.AttachmentSupport = (doc.getObject("XY_Plane"), [""])
sketch10.MapMode = "FlatFace"
sketch10.AttachmentOffset = App.Placement(V(0, 0, 1.8), App.Rotation())
add_polygon(sketch10, [(-7.9, -8.55), (-7.9, -18.85), (0, -18.85), (0, -8.55)])  # lines 0-3
sketch10.addConstraint(Sketcher.Constraint("Vertical", 0))
sketch10.addConstraint(Sketcher.Constraint("Horizontal", 1))
sketch10.addConstraint(Sketcher.Constraint("Vertical", 2))
sketch10.addConstraint(Sketcher.Constraint("Horizontal", 3))
sketch10.addConstraint(Sketcher.Constraint("PointOnObject", 1, 2, -2))
sketch10.addConstraint(Sketcher.Constraint("DistanceX", 1, 1, 1, 2, Q("7.9 mm")))
sketch10.addConstraint(Sketcher.Constraint("DistanceY", 0, 2, 0, 1, Q("10.3 mm")))
sketch10.addConstraint(Sketcher.Constraint("DistanceY", 0, 2, -1, 1, Q("18.85 mm")))
sketch10.setExpression("Constraints[9]", "Params.sketch10_width")
sketch10.setExpression("Constraints[10]", "Params.sketch10_height")
revolution = body.newObject("PartDesign::Revolution", "Revolution")
revolution.Profile = sketch10
revolution.ReferenceAxis = (sketch10, ["V_Axis"])
revolution.setExpression("Angle", "Params.revolution_angle")

# Sketch on XY plane
sketch11 = body.newObject("Sketcher::SketchObject", "Sketch010")
sketch11.AttachmentSupport = (doc.getObject("XY_Plane"), [""])
sketch11.MapMode = "FlatFace"
sketch11.AttachmentOffset = App.Placement(V(0, 0, 1.8), App.Rotation())
add_polygon(sketch11, [(0, -8.55), (0, -18.85), (7.9, -18.85), (7.9, -8.55)])  # lines 0-3
sketch11.addConstraint(Sketcher.Constraint("Vertical", 0))
sketch11.addConstraint(Sketcher.Constraint("Horizontal", 1))
sketch11.addConstraint(Sketcher.Constraint("Vertical", 2))
sketch11.addConstraint(Sketcher.Constraint("Horizontal", 3))
sketch11.addConstraint(Sketcher.Constraint("PointOnObject", 0, 2, -2))
sketch11.addConstraint(Sketcher.Constraint("DistanceX", 1, 1, 1, 2, Q("7.9 mm")))
sketch11.addConstraint(Sketcher.Constraint("DistanceY", 0, 2, 0, 1, Q("10.3 mm")))
sketch11.addConstraint(Sketcher.Constraint("DistanceY", 0, 2, -1, 1, Q("18.85 mm")))
sketch11.setExpression("Constraints[9]", "Params.sketch11_width")
sketch11.setExpression("Constraints[10]", "Params.sketch11_height")
revolution2 = body.newObject("PartDesign::Revolution", "Revolution001")
revolution2.Profile = sketch11
revolution2.ReferenceAxis = (sketch11, ["V_Axis"])
revolution2.setExpression("Angle", "Params.revolution2_angle")
revolution2.Reversed = True
doc.recompute()

fillet = body.newObject("PartDesign::Fillet", "Fillet")
fillet.Base = (revolution2, edges_at(revolution2, [(0, -13.7, 1.8)]))
fillet.setExpression("Radius", "Params.fillet_radius")

doc.recompute()
